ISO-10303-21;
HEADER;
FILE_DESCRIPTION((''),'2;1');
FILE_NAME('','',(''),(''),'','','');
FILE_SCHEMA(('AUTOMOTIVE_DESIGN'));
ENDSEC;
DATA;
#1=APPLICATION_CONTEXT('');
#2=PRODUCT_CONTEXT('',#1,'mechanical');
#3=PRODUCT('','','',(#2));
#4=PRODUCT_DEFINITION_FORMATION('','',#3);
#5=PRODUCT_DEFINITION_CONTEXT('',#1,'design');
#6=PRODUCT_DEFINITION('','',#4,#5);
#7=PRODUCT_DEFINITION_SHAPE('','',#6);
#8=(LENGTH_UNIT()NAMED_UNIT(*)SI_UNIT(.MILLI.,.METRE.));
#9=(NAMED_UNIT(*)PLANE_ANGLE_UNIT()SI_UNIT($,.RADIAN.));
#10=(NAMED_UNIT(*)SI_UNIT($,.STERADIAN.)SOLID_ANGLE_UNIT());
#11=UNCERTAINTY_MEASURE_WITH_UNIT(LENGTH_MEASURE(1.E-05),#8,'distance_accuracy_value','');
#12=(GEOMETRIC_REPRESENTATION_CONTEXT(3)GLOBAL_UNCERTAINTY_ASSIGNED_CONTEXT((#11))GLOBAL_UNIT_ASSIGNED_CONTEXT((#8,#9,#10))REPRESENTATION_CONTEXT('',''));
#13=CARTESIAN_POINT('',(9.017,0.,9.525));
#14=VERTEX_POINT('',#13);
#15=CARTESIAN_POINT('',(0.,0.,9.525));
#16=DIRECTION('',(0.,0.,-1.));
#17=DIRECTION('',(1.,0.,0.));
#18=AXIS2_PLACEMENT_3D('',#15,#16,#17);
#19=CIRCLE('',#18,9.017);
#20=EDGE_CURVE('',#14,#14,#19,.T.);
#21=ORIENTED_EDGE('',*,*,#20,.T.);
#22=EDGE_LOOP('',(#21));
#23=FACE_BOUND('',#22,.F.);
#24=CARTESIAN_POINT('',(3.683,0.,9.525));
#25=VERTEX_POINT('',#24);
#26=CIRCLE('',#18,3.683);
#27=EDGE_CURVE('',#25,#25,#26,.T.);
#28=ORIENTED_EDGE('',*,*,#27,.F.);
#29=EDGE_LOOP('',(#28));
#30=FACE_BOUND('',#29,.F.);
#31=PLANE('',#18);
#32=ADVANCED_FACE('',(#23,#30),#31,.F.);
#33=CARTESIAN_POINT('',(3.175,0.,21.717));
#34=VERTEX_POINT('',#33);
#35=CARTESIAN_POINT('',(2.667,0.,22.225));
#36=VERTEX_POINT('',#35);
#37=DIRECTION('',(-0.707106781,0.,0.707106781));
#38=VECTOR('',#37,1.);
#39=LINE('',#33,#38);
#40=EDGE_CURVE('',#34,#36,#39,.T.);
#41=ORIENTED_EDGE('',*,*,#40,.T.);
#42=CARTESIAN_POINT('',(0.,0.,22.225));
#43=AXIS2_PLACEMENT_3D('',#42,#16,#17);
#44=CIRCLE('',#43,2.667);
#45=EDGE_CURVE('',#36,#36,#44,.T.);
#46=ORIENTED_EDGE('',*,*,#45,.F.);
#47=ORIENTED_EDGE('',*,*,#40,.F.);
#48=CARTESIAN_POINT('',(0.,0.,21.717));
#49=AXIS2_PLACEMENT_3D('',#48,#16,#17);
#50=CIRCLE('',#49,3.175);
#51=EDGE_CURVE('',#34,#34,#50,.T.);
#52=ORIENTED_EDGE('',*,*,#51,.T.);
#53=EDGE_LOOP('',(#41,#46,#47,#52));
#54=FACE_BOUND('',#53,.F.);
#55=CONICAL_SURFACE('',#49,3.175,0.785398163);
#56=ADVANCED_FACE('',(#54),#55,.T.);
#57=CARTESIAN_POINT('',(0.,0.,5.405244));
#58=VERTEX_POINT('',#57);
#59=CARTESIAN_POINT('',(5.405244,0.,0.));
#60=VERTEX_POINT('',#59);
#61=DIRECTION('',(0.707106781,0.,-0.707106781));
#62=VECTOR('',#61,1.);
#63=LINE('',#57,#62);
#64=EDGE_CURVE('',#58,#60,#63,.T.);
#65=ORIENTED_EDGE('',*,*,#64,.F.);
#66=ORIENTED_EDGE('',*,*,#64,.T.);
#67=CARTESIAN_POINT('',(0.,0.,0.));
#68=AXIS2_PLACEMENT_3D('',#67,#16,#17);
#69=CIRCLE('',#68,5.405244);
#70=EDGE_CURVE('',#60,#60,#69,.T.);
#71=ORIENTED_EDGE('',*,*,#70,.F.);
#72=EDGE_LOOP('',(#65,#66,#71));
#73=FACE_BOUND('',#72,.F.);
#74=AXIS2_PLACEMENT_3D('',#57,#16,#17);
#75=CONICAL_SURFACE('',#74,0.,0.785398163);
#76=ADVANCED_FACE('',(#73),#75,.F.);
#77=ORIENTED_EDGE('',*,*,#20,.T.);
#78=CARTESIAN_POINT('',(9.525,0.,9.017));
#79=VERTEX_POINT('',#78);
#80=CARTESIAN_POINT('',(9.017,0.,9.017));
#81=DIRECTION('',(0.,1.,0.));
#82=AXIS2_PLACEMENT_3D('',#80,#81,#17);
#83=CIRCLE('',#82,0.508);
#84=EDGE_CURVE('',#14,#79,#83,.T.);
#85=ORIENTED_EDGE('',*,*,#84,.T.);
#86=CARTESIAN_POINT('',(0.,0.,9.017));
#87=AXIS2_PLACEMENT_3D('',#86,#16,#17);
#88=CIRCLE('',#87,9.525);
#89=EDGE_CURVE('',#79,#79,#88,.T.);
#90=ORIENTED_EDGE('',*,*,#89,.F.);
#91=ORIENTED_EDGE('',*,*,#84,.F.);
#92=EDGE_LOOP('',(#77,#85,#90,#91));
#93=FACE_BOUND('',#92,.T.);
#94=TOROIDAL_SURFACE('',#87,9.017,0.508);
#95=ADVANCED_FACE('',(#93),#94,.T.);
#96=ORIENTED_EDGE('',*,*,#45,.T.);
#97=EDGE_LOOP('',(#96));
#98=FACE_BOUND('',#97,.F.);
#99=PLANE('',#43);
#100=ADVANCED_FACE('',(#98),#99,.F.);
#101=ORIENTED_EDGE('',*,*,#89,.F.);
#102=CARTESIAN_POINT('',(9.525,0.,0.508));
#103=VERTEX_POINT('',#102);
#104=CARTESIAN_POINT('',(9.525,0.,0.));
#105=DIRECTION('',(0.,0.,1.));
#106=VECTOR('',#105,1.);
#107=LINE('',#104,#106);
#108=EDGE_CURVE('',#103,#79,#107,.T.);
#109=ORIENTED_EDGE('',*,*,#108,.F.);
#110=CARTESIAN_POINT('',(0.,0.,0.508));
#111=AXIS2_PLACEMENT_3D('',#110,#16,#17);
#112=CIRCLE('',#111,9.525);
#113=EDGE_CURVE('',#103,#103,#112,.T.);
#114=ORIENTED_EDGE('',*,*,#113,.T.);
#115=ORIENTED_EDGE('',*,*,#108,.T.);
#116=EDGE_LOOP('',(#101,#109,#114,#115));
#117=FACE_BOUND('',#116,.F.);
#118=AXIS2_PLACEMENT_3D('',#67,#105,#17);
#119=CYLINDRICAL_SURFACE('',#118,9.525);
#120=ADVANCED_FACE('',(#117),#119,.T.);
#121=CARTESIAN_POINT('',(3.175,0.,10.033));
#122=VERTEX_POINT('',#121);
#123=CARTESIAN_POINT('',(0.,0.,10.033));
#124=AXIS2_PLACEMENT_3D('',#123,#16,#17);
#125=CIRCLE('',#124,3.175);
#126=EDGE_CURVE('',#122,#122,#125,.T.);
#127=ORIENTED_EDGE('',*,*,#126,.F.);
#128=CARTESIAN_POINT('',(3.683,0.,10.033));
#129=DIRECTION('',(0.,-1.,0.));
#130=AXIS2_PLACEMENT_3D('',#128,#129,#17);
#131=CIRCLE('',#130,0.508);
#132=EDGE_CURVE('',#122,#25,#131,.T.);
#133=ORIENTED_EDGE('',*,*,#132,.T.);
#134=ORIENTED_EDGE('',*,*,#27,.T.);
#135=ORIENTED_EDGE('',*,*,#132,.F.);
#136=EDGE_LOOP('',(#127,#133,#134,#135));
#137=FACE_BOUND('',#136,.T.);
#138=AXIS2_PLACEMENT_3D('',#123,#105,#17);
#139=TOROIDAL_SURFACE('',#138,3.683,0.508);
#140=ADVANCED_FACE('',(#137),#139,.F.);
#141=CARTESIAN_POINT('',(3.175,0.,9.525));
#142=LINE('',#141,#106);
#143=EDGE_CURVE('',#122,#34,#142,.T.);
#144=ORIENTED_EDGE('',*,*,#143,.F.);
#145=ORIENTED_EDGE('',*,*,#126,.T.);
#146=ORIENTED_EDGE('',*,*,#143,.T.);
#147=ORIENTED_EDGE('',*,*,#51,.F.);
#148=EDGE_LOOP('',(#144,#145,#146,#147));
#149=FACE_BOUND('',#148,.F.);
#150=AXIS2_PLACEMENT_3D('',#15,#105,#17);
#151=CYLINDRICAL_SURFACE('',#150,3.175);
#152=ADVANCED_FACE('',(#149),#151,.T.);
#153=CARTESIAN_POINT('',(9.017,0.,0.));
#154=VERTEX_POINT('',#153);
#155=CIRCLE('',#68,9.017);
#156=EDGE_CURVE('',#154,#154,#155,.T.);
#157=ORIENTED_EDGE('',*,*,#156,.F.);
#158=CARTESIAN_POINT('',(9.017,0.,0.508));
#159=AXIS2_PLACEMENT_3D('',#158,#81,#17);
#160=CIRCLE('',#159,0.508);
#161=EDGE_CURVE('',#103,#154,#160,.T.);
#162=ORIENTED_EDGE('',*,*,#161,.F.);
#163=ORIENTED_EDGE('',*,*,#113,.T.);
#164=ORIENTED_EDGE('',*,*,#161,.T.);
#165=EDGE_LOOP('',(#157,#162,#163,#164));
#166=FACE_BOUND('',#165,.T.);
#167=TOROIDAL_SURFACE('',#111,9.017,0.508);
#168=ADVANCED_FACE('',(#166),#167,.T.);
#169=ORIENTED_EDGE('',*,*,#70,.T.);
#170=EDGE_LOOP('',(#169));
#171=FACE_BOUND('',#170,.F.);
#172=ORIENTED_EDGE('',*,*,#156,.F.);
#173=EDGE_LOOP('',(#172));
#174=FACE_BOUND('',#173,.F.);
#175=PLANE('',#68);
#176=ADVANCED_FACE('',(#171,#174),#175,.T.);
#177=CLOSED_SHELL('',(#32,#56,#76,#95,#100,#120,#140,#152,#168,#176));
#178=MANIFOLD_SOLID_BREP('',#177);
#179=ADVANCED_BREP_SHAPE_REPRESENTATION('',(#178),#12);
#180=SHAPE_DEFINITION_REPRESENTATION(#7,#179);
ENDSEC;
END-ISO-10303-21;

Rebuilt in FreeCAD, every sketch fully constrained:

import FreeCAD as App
import Part
import Sketcher
Q = App.Units.Quantity


def edges_at(feature, points):
    """Names of the edges that pass closest to the given points."""
    edges = feature.Shape.Edges
    near = lambda p: min(range(len(edges)), key=lambda i: edges[i].distToShape(Part.Vertex(*p))[0])
    return sorted({f"Edge{near(p) + 1}" for p in points})


def add_polygon(sketch, points):
    """Adds a closed chain of lines whose ends are joined by coincident constraints."""
    first, n = sketch.GeometryCount, len(points)
    for a, b in zip(points, points[1:] + points[:1]):
        sketch.addGeometry(Part.LineSegment(App.Vector(*a, 0), App.Vector(*b, 0)), False)
    for i in range(n):
        sketch.addConstraint(Sketcher.Constraint("Coincident", first + i, 2, first + (i + 1) % n, 1))

doc = App.newDocument("Part")
body = doc.addObject("PartDesign::Body", "Body")

# Sketch on XZ plane
sketch1 = body.newObject("Sketcher::SketchObject", "Sketch")
sketch1.AttachmentSupport = (doc.getObject("XZ_Plane"), [""])
sketch1.MapMode = "FlatFace"
add_polygon(sketch1, [(0, 22.2), (0, 5.4), (5.4, 0), (9.5, 0), (9.5, 9.5), (3.2, 9.5), (3.2, 22.2)])  # lines 0-6
sketch1.addConstraint([
    Sketcher.Constraint("Vertical", 0),
    Sketcher.Constraint("Horizontal", 2),
    Sketcher.Constraint("Vertical", 3),
    Sketcher.Constraint("Horizontal", 4),
    Sketcher.Constraint("Vertical", 5),
    Sketcher.Constraint("Horizontal", 6),
    Sketcher.Constraint("PointOnObject", 0, 2, -2),
    Sketcher.Constraint("PointOnObject", 1, 2, -1),
    Sketcher.Constraint("DistanceY", 5, 1, 5, 2, Q("0.5 in")),
    Sketcher.Constraint("Angle", 1, Q("-45 deg")),
    Sketcher.Constraint("DistanceX", 4, 2, 4, 1, Q("0.25 in")),
    Sketcher.Constraint("DistanceX", 6, 2, 6, 1, Q("0.125 in")),
    Sketcher.Constraint("DistanceY", 3, 1, 3, 2, Q("0.375 in")),
    Sketcher.Constraint("Distance", 1, Q("7.644169 mm")),
])
revolution = body.newObject("PartDesign::Revolution", "Revolution")
revolution.Profile = sketch1
revolution.ReferenceAxis = (sketch1, ["V_Axis"])
revolution.Angle = 360
doc.recompute()

chamfer = body.newObject("PartDesign::Chamfer", "Chamfer")
chamfer.Base = (revolution, edges_at(revolution, [(-3.175, 0, 22.225)]))
chamfer.Size = Q("0.02 in")
doc.recompute()

fillet = body.newObject("PartDesign::Fillet", "Fillet")
fillet.Base = (chamfer, edges_at(chamfer, [(-9.525, 0, 9.525), (-3.175, 0, 9.525), (-9.525, 0, 0)]))
fillet.Radius = Q("0.02 in")

doc.recompute()
